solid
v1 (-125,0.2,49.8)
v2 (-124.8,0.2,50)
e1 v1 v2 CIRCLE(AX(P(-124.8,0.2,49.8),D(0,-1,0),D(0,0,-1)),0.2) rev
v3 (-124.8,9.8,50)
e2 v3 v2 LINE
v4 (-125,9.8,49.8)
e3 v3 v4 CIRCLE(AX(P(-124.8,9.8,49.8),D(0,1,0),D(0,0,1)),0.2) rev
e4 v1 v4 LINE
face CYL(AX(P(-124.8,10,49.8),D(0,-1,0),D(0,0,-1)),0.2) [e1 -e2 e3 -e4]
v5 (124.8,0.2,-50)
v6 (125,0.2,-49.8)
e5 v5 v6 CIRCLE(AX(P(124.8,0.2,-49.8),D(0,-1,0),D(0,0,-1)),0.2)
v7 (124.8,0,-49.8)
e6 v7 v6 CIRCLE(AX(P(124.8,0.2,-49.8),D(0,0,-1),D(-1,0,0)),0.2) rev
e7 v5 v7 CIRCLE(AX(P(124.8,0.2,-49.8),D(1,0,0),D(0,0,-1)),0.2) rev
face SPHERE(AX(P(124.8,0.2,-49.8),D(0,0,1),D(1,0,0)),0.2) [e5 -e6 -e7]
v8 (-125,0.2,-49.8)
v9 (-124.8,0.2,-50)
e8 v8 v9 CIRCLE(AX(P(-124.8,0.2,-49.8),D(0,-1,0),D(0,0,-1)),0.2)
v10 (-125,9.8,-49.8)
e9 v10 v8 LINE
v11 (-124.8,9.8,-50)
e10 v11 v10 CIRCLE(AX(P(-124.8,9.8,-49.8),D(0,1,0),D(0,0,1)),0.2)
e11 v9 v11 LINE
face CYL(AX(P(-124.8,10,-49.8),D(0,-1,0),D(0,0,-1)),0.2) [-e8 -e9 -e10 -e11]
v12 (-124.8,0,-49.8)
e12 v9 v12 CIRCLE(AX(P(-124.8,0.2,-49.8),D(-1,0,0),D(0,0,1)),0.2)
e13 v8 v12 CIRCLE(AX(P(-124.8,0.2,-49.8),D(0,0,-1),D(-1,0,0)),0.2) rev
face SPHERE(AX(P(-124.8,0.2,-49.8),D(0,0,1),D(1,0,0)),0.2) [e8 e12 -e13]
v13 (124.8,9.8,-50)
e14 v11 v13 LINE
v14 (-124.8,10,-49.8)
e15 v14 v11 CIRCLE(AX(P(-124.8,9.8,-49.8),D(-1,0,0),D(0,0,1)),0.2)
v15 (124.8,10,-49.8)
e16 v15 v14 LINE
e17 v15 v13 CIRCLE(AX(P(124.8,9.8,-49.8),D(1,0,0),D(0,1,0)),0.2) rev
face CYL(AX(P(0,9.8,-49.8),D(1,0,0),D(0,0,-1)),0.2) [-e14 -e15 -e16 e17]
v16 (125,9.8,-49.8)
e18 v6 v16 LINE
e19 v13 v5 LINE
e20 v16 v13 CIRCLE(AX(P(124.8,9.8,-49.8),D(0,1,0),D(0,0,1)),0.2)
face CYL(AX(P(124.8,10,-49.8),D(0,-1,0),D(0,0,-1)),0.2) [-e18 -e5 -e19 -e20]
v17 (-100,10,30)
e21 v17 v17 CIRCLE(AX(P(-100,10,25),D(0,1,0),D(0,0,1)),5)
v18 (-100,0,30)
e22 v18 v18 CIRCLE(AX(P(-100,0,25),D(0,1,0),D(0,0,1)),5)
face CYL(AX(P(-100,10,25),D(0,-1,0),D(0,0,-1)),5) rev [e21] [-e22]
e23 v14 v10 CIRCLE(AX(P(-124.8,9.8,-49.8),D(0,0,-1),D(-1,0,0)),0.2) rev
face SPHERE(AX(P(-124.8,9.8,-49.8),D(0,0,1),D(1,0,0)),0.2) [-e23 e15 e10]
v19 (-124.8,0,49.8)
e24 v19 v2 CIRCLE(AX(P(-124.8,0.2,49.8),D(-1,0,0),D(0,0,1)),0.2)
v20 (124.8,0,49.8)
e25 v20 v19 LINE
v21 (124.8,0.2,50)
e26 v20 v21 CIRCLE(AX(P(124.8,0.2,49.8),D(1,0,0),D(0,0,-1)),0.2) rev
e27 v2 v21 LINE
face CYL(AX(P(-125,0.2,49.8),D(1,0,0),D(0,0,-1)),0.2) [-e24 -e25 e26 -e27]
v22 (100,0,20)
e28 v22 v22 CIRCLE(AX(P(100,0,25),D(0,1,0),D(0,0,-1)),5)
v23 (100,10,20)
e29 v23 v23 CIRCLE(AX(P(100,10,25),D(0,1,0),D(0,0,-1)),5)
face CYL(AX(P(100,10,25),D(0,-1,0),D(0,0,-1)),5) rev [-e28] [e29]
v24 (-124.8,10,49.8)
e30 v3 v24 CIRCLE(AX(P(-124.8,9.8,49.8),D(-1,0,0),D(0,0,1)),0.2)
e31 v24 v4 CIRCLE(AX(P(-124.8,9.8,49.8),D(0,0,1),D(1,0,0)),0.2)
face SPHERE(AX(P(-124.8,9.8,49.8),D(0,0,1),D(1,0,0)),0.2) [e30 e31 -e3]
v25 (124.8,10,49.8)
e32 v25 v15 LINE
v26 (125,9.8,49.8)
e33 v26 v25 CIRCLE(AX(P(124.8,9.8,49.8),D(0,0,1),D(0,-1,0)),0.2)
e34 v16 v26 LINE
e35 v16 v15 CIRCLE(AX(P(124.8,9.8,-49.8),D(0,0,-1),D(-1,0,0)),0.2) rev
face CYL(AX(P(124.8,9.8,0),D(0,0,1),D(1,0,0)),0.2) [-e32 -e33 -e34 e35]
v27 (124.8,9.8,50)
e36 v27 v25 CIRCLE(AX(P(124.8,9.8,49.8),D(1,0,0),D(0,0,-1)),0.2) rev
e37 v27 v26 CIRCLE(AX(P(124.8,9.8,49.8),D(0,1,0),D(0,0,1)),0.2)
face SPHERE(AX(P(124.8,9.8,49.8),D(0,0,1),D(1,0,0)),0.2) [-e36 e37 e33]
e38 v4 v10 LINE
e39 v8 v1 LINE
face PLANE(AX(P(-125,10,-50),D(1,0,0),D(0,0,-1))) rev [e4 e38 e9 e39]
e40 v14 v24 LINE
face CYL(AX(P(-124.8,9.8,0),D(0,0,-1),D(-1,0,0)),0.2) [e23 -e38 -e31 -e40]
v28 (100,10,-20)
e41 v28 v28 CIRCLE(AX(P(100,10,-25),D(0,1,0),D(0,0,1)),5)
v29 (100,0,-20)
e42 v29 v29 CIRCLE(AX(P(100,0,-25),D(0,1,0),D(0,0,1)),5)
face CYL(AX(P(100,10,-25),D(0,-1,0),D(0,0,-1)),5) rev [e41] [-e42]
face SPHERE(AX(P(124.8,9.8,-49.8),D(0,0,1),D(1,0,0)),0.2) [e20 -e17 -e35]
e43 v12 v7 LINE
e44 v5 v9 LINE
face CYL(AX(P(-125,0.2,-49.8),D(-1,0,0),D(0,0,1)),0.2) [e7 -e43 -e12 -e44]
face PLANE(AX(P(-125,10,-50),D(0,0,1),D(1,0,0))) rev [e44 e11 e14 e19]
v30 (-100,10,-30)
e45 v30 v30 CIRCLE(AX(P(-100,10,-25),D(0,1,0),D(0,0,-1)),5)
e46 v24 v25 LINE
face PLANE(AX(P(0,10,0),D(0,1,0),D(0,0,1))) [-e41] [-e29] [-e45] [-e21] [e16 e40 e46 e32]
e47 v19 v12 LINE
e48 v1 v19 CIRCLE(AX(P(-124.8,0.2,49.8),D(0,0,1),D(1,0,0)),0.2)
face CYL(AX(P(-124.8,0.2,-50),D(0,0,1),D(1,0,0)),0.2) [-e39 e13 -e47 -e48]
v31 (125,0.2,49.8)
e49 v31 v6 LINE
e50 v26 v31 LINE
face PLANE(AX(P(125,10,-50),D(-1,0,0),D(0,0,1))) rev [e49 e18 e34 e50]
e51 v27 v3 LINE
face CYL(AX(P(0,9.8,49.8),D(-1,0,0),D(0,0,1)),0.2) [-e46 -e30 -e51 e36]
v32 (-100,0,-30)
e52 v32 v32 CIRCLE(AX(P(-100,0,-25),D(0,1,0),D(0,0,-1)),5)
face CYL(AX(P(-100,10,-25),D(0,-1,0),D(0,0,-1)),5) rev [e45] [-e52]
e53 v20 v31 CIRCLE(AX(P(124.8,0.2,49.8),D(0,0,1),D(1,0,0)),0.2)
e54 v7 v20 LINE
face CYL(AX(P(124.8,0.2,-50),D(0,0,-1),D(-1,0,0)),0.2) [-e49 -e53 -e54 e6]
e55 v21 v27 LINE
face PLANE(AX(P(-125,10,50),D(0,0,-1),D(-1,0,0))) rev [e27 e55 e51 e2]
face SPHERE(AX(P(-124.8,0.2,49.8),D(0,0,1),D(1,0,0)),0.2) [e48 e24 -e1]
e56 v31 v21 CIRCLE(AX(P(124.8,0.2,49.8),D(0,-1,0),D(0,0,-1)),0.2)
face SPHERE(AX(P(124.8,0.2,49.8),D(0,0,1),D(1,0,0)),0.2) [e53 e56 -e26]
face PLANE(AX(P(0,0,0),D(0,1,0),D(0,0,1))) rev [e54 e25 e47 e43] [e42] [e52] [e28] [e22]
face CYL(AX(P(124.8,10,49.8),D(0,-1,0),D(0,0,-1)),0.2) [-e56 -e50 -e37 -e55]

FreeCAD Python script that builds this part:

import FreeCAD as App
import Part
import Sketcher

V = App.Vector


def edges_at(feature, points):
    """Names of the edges that pass closest to the given points."""
    edges = feature.Shape.Edges
    near = lambda p: min(range(len(edges)), key=lambda i: edges[i].distToShape(Part.Vertex(*p))[0])
    return sorted({f"Edge{near(p) + 1}" for p in points})


def add_polygon(sketch, points):
    """Adds a closed chain of lines whose ends are joined by coincident constraints."""
    first, n = sketch.GeometryCount, len(points)
    for a, b in zip(points, points[1:] + points[:1]):
        sketch.addGeometry(Part.LineSegment(App.Vector(*a, 0), App.Vector(*b, 0)), False)
    for i in range(n):
        sketch.addConstraint(Sketcher.Constraint("Coincident", first + i, 2, first + (i + 1) % n, 1))

doc = App.newDocument("Part")
body = doc.addObject("PartDesign::Body", "Body")

# Sketch on XZ plane
sketch1 = doc.addObject("Sketcher::SketchObject", "Sketch")
body.addObject(sketch1)
sketch1.AttachmentSupport = (doc.XZ_Plane, [""])
sketch1.MapMode = "FlatFace"
add_polygon(sketch1, [(-125, -50), (-125, 50), (125, 50), (125, -50)])  # lines 0-3
sketch1.addGeometry(Part.Circle(V(-100, 25, 0), V(0, 0, 1), 5), False)  # 4
sketch1.addGeometry(Part.Circle(V(100, 25, 0), V(0, 0, 1), 5), False)  # 5
sketch1.addGeometry(Part.Circle(V(-100, -25, 0), V(0, 0, 1), 5), False)  # 6
sketch1.addGeometry(Part.Circle(V(100, -25, 0), V(0, 0, 1), 5), False)  # 7
sketch1.addConstraint(Sketcher.Constraint("Vertical", 0))
sketch1.addConstraint(Sketcher.Constraint("Horizontal", 1))
sketch1.addConstraint(Sketcher.Constraint("Vertical", 2))
sketch1.addConstraint(Sketcher.Constraint("Horizontal", 3))
sketch1.addConstraint(Sketcher.Constraint("Equal", 4, 5))
sketch1.addConstraint(Sketcher.Constraint("Equal", 5, 6))
sketch1.addConstraint(Sketcher.Constraint("Equal", 6, 7))
sketch1.addConstraint(Sketcher.Constraint("Symmetric", 5, 3, 6, 3, -1, 1))
sketch1.addConstraint(Sketcher.Constraint("Symmetric", 4, 3, 7, 3, -1, 1))
sketch1.addConstraint(Sketcher.Constraint("Symmetric", 0, 2, 2, 2, -1, 1))
sketch1.addConstraint(Sketcher.Constraint("Symmetric", 4, 3, 5, 3, -2))
sketch1.addConstraint(Sketcher.Constraint("Diameter", 4, 10.0))
sketch1.addConstraint(Sketcher.Constraint("DistanceX", 1, 1, 1, 2, 250.0))
sketch1.addConstraint(Sketcher.Constraint("DistanceY", 0, 1, 0, 2, 100.0))
sketch1.addConstraint(Sketcher.Constraint("DistanceX", 4, 3, -1, 1, 100.0))
sketch1.addConstraint(Sketcher.Constraint("DistanceY", -1, 1, 4, 3, 25.0))
pad1 = doc.addObject("PartDesign::Pad", "Pad")
body.addObject(pad1)
pad1.Profile = sketch1
pad1.Length = 10
pad1.Reversed = True
doc.recompute()

fillet = doc.addObject("PartDesign::Fillet", "Fillet")
body.addObject(fillet)
fillet.Base = (pad1, edges_at(pad1, [
    (-125, 10, 0),
    (0, 10, 50),
    (125, 10, 0),
    (0, 0, 50),
    (-125, 0, 0),
    (0, 0, -50),
    (125, 0, 0),
    (0, 10, -50),
    (125, 5, 50),
    (-125, 5, 50),
    (-125, 5, -50),
    (125, 5, -50),
]))
fillet.Radius = 0.2

doc.recompute()
